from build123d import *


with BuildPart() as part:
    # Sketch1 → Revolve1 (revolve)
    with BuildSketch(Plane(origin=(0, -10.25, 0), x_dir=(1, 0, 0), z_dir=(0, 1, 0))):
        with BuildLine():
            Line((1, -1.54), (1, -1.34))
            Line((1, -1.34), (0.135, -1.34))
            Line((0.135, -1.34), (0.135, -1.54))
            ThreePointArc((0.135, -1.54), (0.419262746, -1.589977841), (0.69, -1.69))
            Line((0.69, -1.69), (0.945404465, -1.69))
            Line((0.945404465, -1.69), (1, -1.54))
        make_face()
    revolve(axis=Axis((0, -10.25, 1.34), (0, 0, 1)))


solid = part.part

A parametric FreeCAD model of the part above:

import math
import FreeCAD as App
import Part
import Sketcher
from FreeCAD import Vector
Q = App.Units.Quantity

doc = App.newDocument("Part")
body = doc.addObject("PartDesign::Body", "Body")

# Sketch on XZ plane
sketch1 = doc.addObject("Sketcher::SketchObject", "Sketch")
body.addObject(sketch1)
sketch1.AttachmentSupport = (doc.XZ_Plane, [""])
sketch1.MapMode = "FlatFace"
sketch1.AttachmentOffset = App.Placement(Vector(0, 0, 10.25), App.Rotation())
sketch1.addGeometry(Part.LineSegment(Vector(1, 1.54, 0), Vector(1, 1.34, 0)), False)
sketch1.addGeometry(Part.LineSegment(Vector(1, 1.34, 0), Vector(0.135, 1.34, 0)), False)
sketch1.addGeometry(Part.LineSegment(Vector(0.135, 1.34, 0), Vector(0.135, 1.54, 0)), False)
sketch1.addGeometry(Part.ArcOfCircle(Part.Circle(Vector(0, 3.14125, 0), Vector(0, 0, 1), 1.606931), math.radians(-85.180839), math.radians(-64.571146)), False)
sketch1.addGeometry(Part.LineSegment(Vector(0.69, 1.69, 0), Vector(0.945404, 1.69, 0)), False)
sketch1.addGeometry(Part.LineSegment(Vector(0.945404, 1.69, 0), Vector(1, 1.54, 0)), False)
sketch1.addConstraint(Sketcher.Constraint("Coincident", 0, 2, 1, 1))
sketch1.addConstraint(Sketcher.Constraint("Coincident", 1, 2, 2, 1))
sketch1.addConstraint(Sketcher.Constraint("Coincident", 2, 2, 3, 1))
sketch1.addConstraint(Sketcher.Constraint("Coincident", 3, 2, 4, 1))
sketch1.addConstraint(Sketcher.Constraint("Coincident", 4, 2, 5, 1))
sketch1.addConstraint(Sketcher.Constraint("Coincident", 5, 2, 0, 1))
sketch1.addConstraint(Sketcher.Constraint("Vertical", 0))
sketch1.addConstraint(Sketcher.Constraint("Horizontal", 1))
sketch1.addConstraint(Sketcher.Constraint("Vertical", 2))
sketch1.addConstraint(Sketcher.Constraint("Horizontal", 4))
sketch1.addConstraint(Sketcher.Constraint("PointOnObject", 3, 3, -2))
sketch1.addConstraint(Sketcher.Constraint("Horizontal", 2, 2, 5, 2))
sketch1.addConstraint(Sketcher.Constraint("Angle", 5, Q("-70 deg")))
sketch1.addConstraint(Sketcher.Constraint("DistanceY", 0, 2, 0, 1, Q("0.2 mm")))
sketch1.addConstraint(Sketcher.Constraint("DistanceX", -1, 1, 0, 2, Q("1 mm")))
sketch1.addConstraint(Sketcher.Constraint("DistanceX", 1, 2, 1, 1, Q("0.865 mm")))
sketch1.addConstraint(Sketcher.Constraint("DistanceY", -1, 1, 0, 2, Q("1.34 mm")))
sketch1.addConstraint(Sketcher.Constraint("DistanceX", -1, 1, 3, 2, Q("0.69 mm")))
sketch1.addConstraint(Sketcher.Constraint("DistanceY", -1, 1, 3, 2, Q("1.69 mm")))
revolution = doc.addObject("PartDesign::Revolution", "Revolution")
body.addObject(revolution)
revolution.Profile = sketch1
revolution.ReferenceAxis = (sketch1, ["V_Axis"])
revolution.Angle = 360

doc.recompute()
